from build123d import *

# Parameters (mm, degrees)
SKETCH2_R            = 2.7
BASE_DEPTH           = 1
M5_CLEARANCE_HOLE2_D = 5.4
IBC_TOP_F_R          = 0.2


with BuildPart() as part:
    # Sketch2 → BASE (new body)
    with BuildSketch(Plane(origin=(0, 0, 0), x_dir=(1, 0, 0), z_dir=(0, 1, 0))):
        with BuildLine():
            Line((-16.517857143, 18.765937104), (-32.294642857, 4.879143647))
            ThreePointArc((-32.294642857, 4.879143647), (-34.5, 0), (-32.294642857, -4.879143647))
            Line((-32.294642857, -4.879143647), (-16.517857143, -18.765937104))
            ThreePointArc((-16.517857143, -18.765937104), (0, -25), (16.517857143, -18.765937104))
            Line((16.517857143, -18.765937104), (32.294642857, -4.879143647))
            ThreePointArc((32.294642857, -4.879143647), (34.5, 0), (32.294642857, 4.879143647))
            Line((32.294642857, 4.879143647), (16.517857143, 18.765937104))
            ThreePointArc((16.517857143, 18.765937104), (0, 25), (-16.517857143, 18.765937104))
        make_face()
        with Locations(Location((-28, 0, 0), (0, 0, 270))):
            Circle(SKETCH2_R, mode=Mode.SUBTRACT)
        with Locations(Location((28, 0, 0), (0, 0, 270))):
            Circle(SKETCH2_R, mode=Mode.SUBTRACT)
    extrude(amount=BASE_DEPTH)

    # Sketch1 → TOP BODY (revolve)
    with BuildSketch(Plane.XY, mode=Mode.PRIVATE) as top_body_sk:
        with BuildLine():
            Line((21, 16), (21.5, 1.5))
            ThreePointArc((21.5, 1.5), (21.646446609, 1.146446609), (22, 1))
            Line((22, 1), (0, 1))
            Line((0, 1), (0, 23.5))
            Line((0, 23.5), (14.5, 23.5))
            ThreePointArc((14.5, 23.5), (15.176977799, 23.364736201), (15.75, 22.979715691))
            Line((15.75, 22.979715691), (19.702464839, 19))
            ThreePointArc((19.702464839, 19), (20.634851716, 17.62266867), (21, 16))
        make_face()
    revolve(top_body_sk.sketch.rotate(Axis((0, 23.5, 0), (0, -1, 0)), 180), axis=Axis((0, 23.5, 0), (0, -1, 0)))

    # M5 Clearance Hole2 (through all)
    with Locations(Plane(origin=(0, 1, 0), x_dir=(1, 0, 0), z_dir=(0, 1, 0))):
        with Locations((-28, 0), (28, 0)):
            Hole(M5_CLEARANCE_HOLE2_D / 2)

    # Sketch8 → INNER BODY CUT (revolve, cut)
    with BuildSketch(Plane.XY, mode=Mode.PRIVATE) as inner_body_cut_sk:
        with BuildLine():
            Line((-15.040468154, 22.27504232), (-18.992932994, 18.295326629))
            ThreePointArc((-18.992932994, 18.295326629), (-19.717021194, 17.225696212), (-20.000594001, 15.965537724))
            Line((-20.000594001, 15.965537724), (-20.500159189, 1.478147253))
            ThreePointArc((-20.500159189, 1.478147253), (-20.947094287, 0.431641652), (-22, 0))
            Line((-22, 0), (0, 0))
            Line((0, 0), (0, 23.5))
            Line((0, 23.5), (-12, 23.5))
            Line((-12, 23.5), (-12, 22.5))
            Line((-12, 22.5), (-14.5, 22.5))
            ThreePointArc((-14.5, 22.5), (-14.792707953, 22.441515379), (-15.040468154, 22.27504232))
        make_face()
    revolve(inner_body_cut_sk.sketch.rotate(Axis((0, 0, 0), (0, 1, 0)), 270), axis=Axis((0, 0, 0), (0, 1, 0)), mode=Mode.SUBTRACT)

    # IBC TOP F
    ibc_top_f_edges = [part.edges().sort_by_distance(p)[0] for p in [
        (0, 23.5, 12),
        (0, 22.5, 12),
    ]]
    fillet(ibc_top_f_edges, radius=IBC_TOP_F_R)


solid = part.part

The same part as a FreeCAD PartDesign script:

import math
import FreeCAD as App
import Part
import Sketcher
from FreeCAD import Vector
Q = App.Units.Quantity


def edges_at(feature, points):
    """Names of the edges that pass closest to the given points."""
    edges = feature.Shape.Edges
    near = lambda p: min(range(len(edges)), key=lambda i: edges[i].distToShape(Part.Vertex(*p))[0])
    return sorted({f"Edge{near(p) + 1}" for p in points})

doc = App.newDocument("Part")
body = doc.addObject("PartDesign::Body", "Body")

sketch1 = body.newObject("Sketcher::SketchObject", "Sketch")
sketch1.AttachmentSupport = (doc.getObject("XZ_Plane"), [""])
sketch1.MapMode = "FlatFace"
sketch1.addGeometry(Part.LineSegment(Vector(-16.5, -18.8, 0), Vector(-32.3, -4.9, 0)), False)
sketch1.addGeometry(Part.ArcOfCircle(Part.Circle(Vector(-28, 0, 0), Vector(0, 0, 1), 6.5), math.radians(131), math.radians(229)), False)
sketch1.addGeometry(Part.LineSegment(Vector(-32.3, 4.9, 0), Vector(-16.5, 18.8, 0)), False)
sketch1.addGeometry(Part.ArcOfCircle(Part.Circle(Vector(0, 0, 0), Vector(0, 0, 1), 25), math.radians(49), math.radians(131)), False)
sketch1.addGeometry(Part.LineSegment(Vector(16.5, 18.8, 0), Vector(32.3, 4.9, 0)), False)
sketch1.addGeometry(Part.ArcOfCircle(Part.Circle(Vector(28, 0, 0), Vector(0, 0, 1), 6.5), math.radians(-49), math.radians(49)), False)
sketch1.addGeometry(Part.LineSegment(Vector(32.3, -4.9, 0), Vector(16.5, -18.8, 0)), False)
sketch1.addGeometry(Part.ArcOfCircle(Part.Circle(Vector(0, 0, 0), Vector(0, 0, 1), 25), math.radians(-131), math.radians(-49)), False)
sketch1.addGeometry(Part.Circle(Vector(-28, 0, 0), Vector(0, 0, 1), 2.7), False)
sketch1.addGeometry(Part.Circle(Vector(28, 0, 0), Vector(0, 0, 1), 2.7), False)
sketch1.addConstraint(Sketcher.Constraint("Tangent", 0, 2, 1, 2))
sketch1.addConstraint(Sketcher.Constraint("Tangent", 1, 1, 2, 1))
sketch1.addConstraint(Sketcher.Constraint("Tangent", 2, 2, 3, 2))
sketch1.addConstraint(Sketcher.Constraint("Tangent", 3, 1, 4, 1))
sketch1.addConstraint(Sketcher.Constraint("Tangent", 4, 2, 5, 2))
sketch1.addConstraint(Sketcher.Constraint("Tangent", 5, 1, 6, 1))
sketch1.addConstraint(Sketcher.Constraint("Tangent", 6, 2, 7, 2))
sketch1.addConstraint(Sketcher.Constraint("Tangent", 7, 1, 0, 1))
sketch1.addConstraint(Sketcher.Constraint("Coincident", 3, 3, -1, 1))
sketch1.addConstraint(Sketcher.Constraint("Coincident", 7, 3, -1, 1))
sketch1.addConstraint(Sketcher.Constraint("Coincident", 8, 3, 1, 3))
sketch1.addConstraint(Sketcher.Constraint("Coincident", 9, 3, 5, 3))
sketch1.addConstraint(Sketcher.Constraint("Equal", 1, 5))
sketch1.addConstraint(Sketcher.Constraint("Equal", 3, 7))
sketch1.addConstraint(Sketcher.Constraint("Equal", 8, 9))
sketch1.addConstraint(Sketcher.Constraint("Symmetric", 1, 3, 5, 3, -1, 1))
sketch1.addConstraint(Sketcher.Constraint("PointOnObject", 1, 3, -1))
sketch1.addConstraint(Sketcher.Constraint("Radius", 3, Q("25 mm")))
sketch1.addConstraint(Sketcher.Constraint("Diameter", 8, Q("5.4 mm")))
sketch1.addConstraint(Sketcher.Constraint("Radius", 1, Q("6.5 mm")))
sketch1.addConstraint(Sketcher.Constraint("DistanceX", 1, 3, -1, 1, Q("28 mm")))
pad1 = body.newObject("PartDesign::Pad", "Pad")
pad1.Profile = sketch1
pad1.Length = 1
pad1.Reversed = True

sketch2 = body.newObject("Sketcher::SketchObject", "Sketch001")
sketch2.AttachmentSupport = (doc.getObject("XY_Plane"), [""])
sketch2.MapMode = "FlatFace"
sketch2.addGeometry(Part.LineSegment(Vector(21.5, 1.5, 0), Vector(21, 16, 0)), False)
sketch2.addGeometry(Part.ArcOfCircle(Part.Circle(Vector(16.53, 15.85, 0), Vector(0, 0, 1), 4.48), math.radians(2), math.radians(45)), False)
sketch2.addGeometry(Part.LineSegment(Vector(19.7, 19, 0), Vector(15.75, 22.98, 0)), False)
sketch2.addGeometry(Part.ArcOfCircle(Part.Circle(Vector(14.5, 21.74, 0), Vector(0, 0, 1), 1.76), math.radians(45), math.radians(90)), False)
sketch2.addGeometry(Part.LineSegment(Vector(14.5, 23.5, 0), Vector(0, 23.5, 0)), False)
sketch2.addGeometry(Part.LineSegment(Vector(0, 23.5, 0), Vector(0, 1, 0)), False)
sketch2.addGeometry(Part.LineSegment(Vector(0, 1, 0), Vector(22, 1, 0)), False)
sketch2.addGeometry(Part.ArcOfCircle(Part.Circle(Vector(22, 1.5, 0), Vector(0, 0, 1), 0.5), math.radians(180), math.radians(270)), False)
sketch2.addConstraint(Sketcher.Constraint("Tangent", 0, 2, 1, 1))
sketch2.addConstraint(Sketcher.Constraint("Tangent", 1, 2, 2, 1))
sketch2.addConstraint(Sketcher.Constraint("Tangent", 2, 2, 3, 1))
sketch2.addConstraint(Sketcher.Constraint("Tangent", 3, 2, 4, 1))
sketch2.addConstraint(Sketcher.Constraint("Coincident", 4, 2, 5, 1))
sketch2.addConstraint(Sketcher.Constraint("Coincident", 5, 2, 6, 1))
sketch2.addConstraint(Sketcher.Constraint("Tangent", 6, 2, 7, 2))
sketch2.addConstraint(Sketcher.Constraint("Coincident", 7, 1, 0, 1))
sketch2.addConstraint(Sketcher.Constraint("Horizontal", 4))
sketch2.addConstraint(Sketcher.Constraint("Vertical", 5))
sketch2.addConstraint(Sketcher.Constraint("Horizontal", 6))
sketch2.addConstraint(Sketcher.Constraint("PointOnObject", 4, 2, -2))
sketch2.addConstraint(Sketcher.Constraint("Radius", 7, Q("0.5 mm")))
sketch2.addConstraint(Sketcher.Constraint("DistanceX", 6, 1, 6, 2, Q("22 mm")))
sketch2.addConstraint(Sketcher.Constraint("DistanceX", 4, 2, 4, 1, Q("14.5 mm")))
sketch2.addConstraint(Sketcher.Constraint("DistanceY", 5, 2, 5, 1, Q("22.5 mm")))
sketch2.addConstraint(Sketcher.Constraint("DistanceX", -1, 1, 0, 2, Q("21 mm")))
sketch2.addConstraint(Sketcher.Constraint("DistanceY", -1, 1, 0, 2, Q("16 mm")))
sketch2.addConstraint(Sketcher.Constraint("DistanceY", -1, 1, 1, 2, Q("19 mm")))
sketch2.addConstraint(Sketcher.Constraint("DistanceY", -1, 1, 5, 2, Q("1 mm")))
sketch2.addConstraint(Sketcher.Constraint("DistanceY", -1, 1, 7, 1, Q("1.5 mm")))
sketch2.addConstraint(Sketcher.Constraint("Radius", 1, Q("4.476202 mm")))
revolution = body.newObject("PartDesign::Revolution", "Revolution")
revolution.Profile = sketch2
revolution.ReferenceAxis = (sketch2, ["V_Axis"])
revolution.Angle = 360

sketch3 = body.newObject("Sketcher::SketchObject", "Sketch002")
sketch3.AttachmentSupport = (doc.getObject("XZ_Plane"), [""])
sketch3.MapMode = "FlatFace"
sketch3.AttachmentOffset = App.Placement(Vector(0, 0, -1), App.Rotation())
sketch3.addGeometry(Part.Circle(Vector(-28, 0, 0), Vector(0, 0, 1), 2.7), False)
sketch3.addGeometry(Part.Circle(Vector(28, 0, 0), Vector(0, 0, 1), 2.7), False)
sketch3.addConstraint(Sketcher.Constraint("Equal", 0, 1))
sketch3.addConstraint(Sketcher.Constraint("Symmetric", 0, 3, 1, 3, -1, 1))
sketch3.addConstraint(Sketcher.Constraint("PointOnObject", 0, 3, -1))
sketch3.addConstraint(Sketcher.Constraint("Diameter", 0, Q("5.4 mm")))
sketch3.addConstraint(Sketcher.Constraint("DistanceX", 0, 3, -1, 1, Q("28 mm")))
doc.recompute()
hole = body.newObject("PartDesign::Hole", "Hole")
hole.Profile = sketch3
hole.ThreadType = "None"
hole.Diameter = 5.4
hole.DepthType = "ThroughAll"
hole.Reversed = True

sketch4 = body.newObject("Sketcher::SketchObject", "Sketch003")
sketch4.AttachmentSupport = (doc.getObject("XY_Plane"), [""])
sketch4.MapMode = "FlatFace"
sketch4.addGeometry(Part.LineSegment(Vector(-15, 22.3, 0), Vector(-19, 18.3, 0)), False)
sketch4.addGeometry(Part.ArcOfCircle(Part.Circle(Vector(-16.5, 15.8, 0), Vector(0, 0, 1), 3.5), math.radians(135), math.radians(178)), False)
sketch4.addGeometry(Part.LineSegment(Vector(-20, 16, 0), Vector(-20.5, 1.5, 0)), False)
sketch4.addGeometry(Part.ArcOfCircle(Part.Circle(Vector(-22, 1.5, 0), Vector(0, 0, 1), 1.5), math.radians(-90), math.radians(-1)), False)
sketch4.addGeometry(Part.LineSegment(Vector(-22, 0, 0), Vector(0, 0, 0)), False)
sketch4.addGeometry(Part.LineSegment(Vector(0, 0, 0), Vector(0, 23.5, 0)), False)
sketch4.addGeometry(Part.LineSegment(Vector(0, 23.5, 0), Vector(-12, 23.5, 0)), False)
sketch4.addGeometry(Part.LineSegment(Vector(-12, 23.5, 0), Vector(-12, 22.5, 0)), False)
sketch4.addGeometry(Part.LineSegment(Vector(-12, 22.5, 0), Vector(-14.5, 22.5, 0)), False)
sketch4.addGeometry(Part.ArcOfCircle(Part.Circle(Vector(-14.5, 21.7, 0), Vector(0, 0, 1), 0.8), math.radians(90), math.radians(135)), False)
sketch4.addConstraint(Sketcher.Constraint("Tangent", 0, 2, 1, 1))
sketch4.addConstraint(Sketcher.Constraint("Tangent", 1, 2, 2, 1))
sketch4.addConstraint(Sketcher.Constraint("Coincident", 2, 2, 3, 2))
sketch4.addConstraint(Sketcher.Constraint("Tangent", 3, 1, 4, 1))
sketch4.addConstraint(Sketcher.Constraint("Coincident", 4, 2, 5, 1))
sketch4.addConstraint(Sketcher.Constraint("Coincident", 5, 2, 6, 1))
sketch4.addConstraint(Sketcher.Constraint("Coincident", 6, 2, 7, 1))
sketch4.addConstraint(Sketcher.Constraint("Coincident", 7, 2, 8, 1))
sketch4.addConstraint(Sketcher.Constraint("Tangent", 8, 2, 9, 1))
sketch4.addConstraint(Sketcher.Constraint("Tangent", 9, 2, 0, 1))
sketch4.addConstraint(Sketcher.Constraint("Horizontal", 4))
sketch4.addConstraint(Sketcher.Constraint("Vertical", 5))
sketch4.addConstraint(Sketcher.Constraint("Horizontal", 6))
sketch4.addConstraint(Sketcher.Constraint("Vertical", 7))
sketch4.addConstraint(Sketcher.Constraint("Horizontal", 8))
sketch4.addConstraint(Sketcher.Constraint("Coincident", 4, 2, -1, 1))
sketch4.addConstraint(Sketcher.Constraint("Radius", 3, Q("1.5 mm")))
sketch4.addConstraint(Sketcher.Constraint("DistanceX", 4, 1, 4, 2, Q("22 mm")))
sketch4.addConstraint(Sketcher.Constraint("DistanceX", 6, 2, 6, 1, Q("12 mm")))
sketch4.addConstraint(Sketcher.Constraint("DistanceY", 7, 2, 7, 1, Q("1 mm")))
sketch4.addConstraint(Sketcher.Constraint("DistanceX", 8, 2, 8, 1, Q("2.5 mm")))
sketch4.addConstraint(Sketcher.Constraint("DistanceY", 5, 1, 5, 2, Q("23.5 mm")))
sketch4.addConstraint(Sketcher.Constraint("Radius", 1, Q("3.476202 mm")))
sketch4.addConstraint(Sketcher.Constraint("Distance", 2, Q("14.496001 mm")))
sketch4.addConstraint(Sketcher.Constraint("Radius", 9, Q("0.761725 mm")))
sketch4.addConstraint(Sketcher.Constraint("DistanceX", 2, 2, 1, 3, Q("3.973702 mm")))
sketch4.addConstraint(Sketcher.Constraint("Distance", 0, Q("5.608932 mm")))
groove = body.newObject("PartDesign::Groove", "Groove")
groove.Profile = sketch4
groove.ReferenceAxis = (sketch4, ["V_Axis"])
groove.Angle = 360
doc.recompute()

fillet = body.newObject("PartDesign::Fillet", "Fillet")
fillet.Base = (groove, edges_at(groove, [(0, 23.5, 12), (0, 22.5, 12)]))
fillet.Radius = 0.2

doc.recompute()
